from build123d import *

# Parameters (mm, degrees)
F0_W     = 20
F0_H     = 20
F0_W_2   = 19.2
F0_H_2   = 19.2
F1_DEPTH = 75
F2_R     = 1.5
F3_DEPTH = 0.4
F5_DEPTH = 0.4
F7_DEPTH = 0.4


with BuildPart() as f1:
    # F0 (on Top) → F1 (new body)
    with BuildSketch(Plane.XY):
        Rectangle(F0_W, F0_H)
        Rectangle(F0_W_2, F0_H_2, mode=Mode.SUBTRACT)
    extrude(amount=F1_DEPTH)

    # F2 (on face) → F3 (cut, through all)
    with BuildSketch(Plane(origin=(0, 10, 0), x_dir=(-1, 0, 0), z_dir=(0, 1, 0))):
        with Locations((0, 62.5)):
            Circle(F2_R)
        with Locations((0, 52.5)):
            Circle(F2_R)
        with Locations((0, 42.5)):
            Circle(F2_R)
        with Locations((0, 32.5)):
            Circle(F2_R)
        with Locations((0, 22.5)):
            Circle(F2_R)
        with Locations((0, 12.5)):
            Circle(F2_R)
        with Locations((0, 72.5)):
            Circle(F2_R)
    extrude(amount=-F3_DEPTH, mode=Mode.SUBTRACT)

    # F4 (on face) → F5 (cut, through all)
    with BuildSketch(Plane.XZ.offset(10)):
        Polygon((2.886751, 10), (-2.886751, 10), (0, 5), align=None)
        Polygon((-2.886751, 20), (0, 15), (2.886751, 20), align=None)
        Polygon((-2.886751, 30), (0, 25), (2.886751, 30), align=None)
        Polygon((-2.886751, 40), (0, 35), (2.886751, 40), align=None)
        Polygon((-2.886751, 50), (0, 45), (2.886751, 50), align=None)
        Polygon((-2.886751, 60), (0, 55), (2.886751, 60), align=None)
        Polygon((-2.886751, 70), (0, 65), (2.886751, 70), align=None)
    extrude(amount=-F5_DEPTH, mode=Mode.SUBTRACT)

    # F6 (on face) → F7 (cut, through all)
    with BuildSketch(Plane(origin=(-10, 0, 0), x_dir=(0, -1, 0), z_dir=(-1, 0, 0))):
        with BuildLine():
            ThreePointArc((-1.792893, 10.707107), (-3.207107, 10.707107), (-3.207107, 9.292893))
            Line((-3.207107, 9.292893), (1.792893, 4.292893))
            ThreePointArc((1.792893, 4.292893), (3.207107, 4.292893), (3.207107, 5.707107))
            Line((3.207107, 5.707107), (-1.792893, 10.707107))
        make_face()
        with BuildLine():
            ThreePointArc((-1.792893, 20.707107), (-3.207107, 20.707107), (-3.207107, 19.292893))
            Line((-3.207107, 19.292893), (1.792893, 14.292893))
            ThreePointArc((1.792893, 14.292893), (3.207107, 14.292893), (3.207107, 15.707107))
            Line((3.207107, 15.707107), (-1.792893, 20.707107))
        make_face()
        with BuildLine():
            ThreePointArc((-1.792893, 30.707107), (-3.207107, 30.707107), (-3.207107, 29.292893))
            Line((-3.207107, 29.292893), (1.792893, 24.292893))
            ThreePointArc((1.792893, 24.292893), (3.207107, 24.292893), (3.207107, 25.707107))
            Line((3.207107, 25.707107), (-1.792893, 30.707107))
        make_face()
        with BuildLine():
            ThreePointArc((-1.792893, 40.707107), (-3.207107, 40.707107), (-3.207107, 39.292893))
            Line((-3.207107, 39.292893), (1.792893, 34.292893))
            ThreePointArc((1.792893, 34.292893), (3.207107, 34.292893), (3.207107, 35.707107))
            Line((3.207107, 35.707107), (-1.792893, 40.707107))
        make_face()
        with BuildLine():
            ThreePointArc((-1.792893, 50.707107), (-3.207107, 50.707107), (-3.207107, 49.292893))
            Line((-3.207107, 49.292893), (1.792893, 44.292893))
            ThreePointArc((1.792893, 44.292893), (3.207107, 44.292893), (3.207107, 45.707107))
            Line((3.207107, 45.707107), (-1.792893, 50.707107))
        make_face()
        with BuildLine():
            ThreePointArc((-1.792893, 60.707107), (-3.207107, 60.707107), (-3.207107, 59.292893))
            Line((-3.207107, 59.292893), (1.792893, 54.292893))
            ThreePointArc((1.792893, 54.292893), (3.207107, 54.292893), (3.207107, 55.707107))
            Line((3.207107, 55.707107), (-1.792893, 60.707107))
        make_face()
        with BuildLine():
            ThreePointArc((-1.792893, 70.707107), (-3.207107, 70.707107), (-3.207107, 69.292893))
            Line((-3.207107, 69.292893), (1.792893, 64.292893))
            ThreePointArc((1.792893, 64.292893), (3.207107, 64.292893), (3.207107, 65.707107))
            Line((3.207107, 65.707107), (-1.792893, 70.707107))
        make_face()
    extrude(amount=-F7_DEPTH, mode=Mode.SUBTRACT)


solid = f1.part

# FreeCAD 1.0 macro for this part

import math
import FreeCAD as App
import Part
import Sketcher
from FreeCAD import Vector
Q = App.Units.Quantity


def add_polygon(sketch, points):
    """Adds a closed chain of lines whose ends are joined by coincident constraints."""
    first, n = sketch.GeometryCount, len(points)
    for a, b in zip(points, points[1:] + points[:1]):
        sketch.addGeometry(Part.LineSegment(App.Vector(*a, 0), App.Vector(*b, 0)), False)
    for i in range(n):
        sketch.addConstraint(Sketcher.Constraint("Coincident", first + i, 2, first + (i + 1) % n, 1))

doc = App.newDocument("Part")
body = doc.addObject("PartDesign::Body", "Body")

# Sketch on XY plane
sketch1 = doc.addObject("Sketcher::SketchObject", "Sketch")
body.addObject(sketch1)
sketch1.AttachmentSupport = (doc.XY_Plane, [""])
sketch1.MapMode = "FlatFace"
add_polygon(sketch1, [(-10, 10), (-10, -10), (10, -10), (10, 10)])  # lines 0-3
add_polygon(sketch1, [(9.6, -9.6), (-9.6, -9.6), (-9.6, 9.6), (9.6, 9.6)])  # lines 4-7
sketch1.addConstraint([
    Sketcher.Constraint("Vertical", 0),
    Sketcher.Constraint("Horizontal", 1),
    Sketcher.Constraint("Vertical", 2),
    Sketcher.Constraint("Horizontal", 3),
    Sketcher.Constraint("Horizontal", 4),
    Sketcher.Constraint("Vertical", 5),
    Sketcher.Constraint("Horizontal", 6),
    Sketcher.Constraint("Vertical", 7),
    Sketcher.Constraint("Symmetric", 0, 2, 2, 2, -1, 1),
    Sketcher.Constraint("Symmetric", 4, 2, 6, 2, -1, 1),
    Sketcher.Constraint("Equal", 3, 0),
    Sketcher.Constraint("Equal", 6, 5),
    Sketcher.Constraint("DistanceX", 1, 1, 1, 2, Q("20 mm")),
    Sketcher.Constraint("DistanceX", 4, 2, 4, 1, Q("19.2 mm")),
])
pad1 = doc.addObject("PartDesign::Pad", "Pad")
body.addObject(pad1)
pad1.Profile = sketch1
pad1.Length = 75

# Sketch on XZ plane
sketch2 = doc.addObject("Sketcher::SketchObject", "Sketch001")
body.addObject(sketch2)
sketch2.AttachmentSupport = (doc.XZ_Plane, [""])
sketch2.MapMode = "FlatFace"
sketch2.AttachmentOffset = App.Placement(Vector(0, 0, -10), App.Rotation())
sketch2.addGeometry([
    Part.Circle(Vector(0, 62.5, 0), Vector(0, 0, 1), 1.5),  # 0
    Part.Circle(Vector(0, 52.5, 0), Vector(0, 0, 1), 1.5),  # 1
    Part.Circle(Vector(0, 42.5, 0), Vector(0, 0, 1), 1.5),  # 2
    Part.Circle(Vector(0, 32.5, 0), Vector(0, 0, 1), 1.5),  # 3
    Part.Circle(Vector(0, 22.5, 0), Vector(0, 0, 1), 1.5),  # 4
    Part.Circle(Vector(0, 12.5, 0), Vector(0, 0, 1), 1.5),  # 5
    Part.Circle(Vector(0, 72.5, 0), Vector(0, 0, 1), 1.5),  # 6
], False)
sketch2.addConstraint([
    Sketcher.Constraint("Equal", 0, 1),
    Sketcher.Constraint("Equal", 1, 2),
    Sketcher.Constraint("Equal", 2, 3),
    Sketcher.Constraint("Equal", 3, 4),
    Sketcher.Constraint("Equal", 4, 5),
    Sketcher.Constraint("Equal", 5, 6),
    Sketcher.Constraint("PointOnObject", 0, 3, -2),
    Sketcher.Constraint("PointOnObject", 1, 3, -2),
    Sketcher.Constraint("PointOnObject", 2, 3, -2),
    Sketcher.Constraint("PointOnObject", 3, 3, -2),
    Sketcher.Constraint("PointOnObject", 4, 3, -2),
    Sketcher.Constraint("PointOnObject", 5, 3, -2),
    Sketcher.Constraint("PointOnObject", 6, 3, -2),
    Sketcher.Constraint("Diameter", 0, Q("3 mm")),
    Sketcher.Constraint("DistanceY", 1, 3, 0, 3, Q("10 mm")),
    Sketcher.Constraint("DistanceY", 2, 3, 1, 3, Q("10 mm")),
    Sketcher.Constraint("DistanceY", 3, 3, 2, 3, Q("10 mm")),
    Sketcher.Constraint("DistanceY", 4, 3, 3, 3, Q("10 mm")),
    Sketcher.Constraint("DistanceY", 5, 3, 4, 3, Q("10 mm")),
    Sketcher.Constraint("DistanceY", 0, 3, 6, 3, Q("10 mm")),
    Sketcher.Constraint("DistanceY", -1, 1, 0, 3, Q("62.5 mm")),
])
pocket1 = doc.addObject("PartDesign::Pocket", "Pocket")
body.addObject(pocket1)
pocket1.Profile = sketch2
pocket1.Length = 0.4
pocket1.Reversed = True

# Sketch on XZ plane
sketch3 = doc.addObject("Sketcher::SketchObject", "Sketch002")
body.addObject(sketch3)
sketch3.AttachmentSupport = (doc.XZ_Plane, [""])
sketch3.MapMode = "FlatFace"
sketch3.AttachmentOffset = App.Placement(Vector(0, 0, 10), App.Rotation())
add_polygon(sketch3, [(2.886751, 10), (-2.886751, 10), (0, 5)])  # lines 0-2
add_polygon(sketch3, [(-2.886751, 20), (0, 15), (2.886751, 20)])  # lines 3-5
add_polygon(sketch3, [(-2.886751, 30), (0, 25), (2.886751, 30)])  # lines 6-8
add_polygon(sketch3, [(-2.886751, 40), (0, 35), (2.886751, 40)])  # lines 9-11
add_polygon(sketch3, [(-2.886751, 50), (0, 45), (2.886751, 50)])  # lines 12-14
add_polygon(sketch3, [(-2.886751, 60), (0, 55), (2.886751, 60)])  # lines 15-17
add_polygon(sketch3, [(-2.886751, 70), (0, 65), (2.886751, 70)])  # lines 18-20
sketch3.addConstraint([
    Sketcher.Constraint("Horizontal", 0),
    Sketcher.Constraint("Horizontal", 5),
    Sketcher.Constraint("Horizontal", 8),
    Sketcher.Constraint("Horizontal", 11),
    Sketcher.Constraint("Horizontal", 14),
    Sketcher.Constraint("Horizontal", 17),
    Sketcher.Constraint("Horizontal", 20),
    Sketcher.Constraint("PointOnObject", 1, 2, -2),
    Sketcher.Constraint("PointOnObject", 3, 2, -2),
    Sketcher.Constraint("PointOnObject", 6, 2, -2),
    Sketcher.Constraint("PointOnObject", 9, 2, -2),
    Sketcher.Constraint("PointOnObject", 12, 2, -2),
    Sketcher.Constraint("PointOnObject", 15, 2, -2),
    Sketcher.Constraint("PointOnObject", 18, 2, -2),
    Sketcher.Constraint("Parallel", 1, 3),
    Sketcher.Constraint("Parallel", 2, 4),
    Sketcher.Constraint("Parallel", 3, 6),
    Sketcher.Constraint("Parallel", 4, 7),
    Sketcher.Constraint("Parallel", 6, 9),
    Sketcher.Constraint("Parallel", 7, 10),
    Sketcher.Constraint("Parallel", 9, 12),
    Sketcher.Constraint("Parallel", 10, 13),
    Sketcher.Constraint("Parallel", 12, 15),
    Sketcher.Constraint("Parallel", 13, 16),
    Sketcher.Constraint("Parallel", 15, 18),
    Sketcher.Constraint("Parallel", 16, 19),
    Sketcher.Constraint("Vertical", 2, 2, 4, 2),
    Sketcher.Constraint("Vertical", 4, 2, 7, 2),
    Sketcher.Constraint("Vertical", 7, 2, 10, 2),
    Sketcher.Constraint("Vertical", 10, 2, 13, 2),
    Sketcher.Constraint("Vertical", 13, 2, 16, 2),
    Sketcher.Constraint("Vertical", 16, 2, 19, 2),
    Sketcher.Constraint("Equal", 1, 2),
    Sketcher.Constraint("Angle", 1, Q("-60.000003 deg")),
    Sketcher.Constraint("DistanceY", -1, 1, 0, 2, Q("10 mm")),
    Sketcher.Constraint("DistanceY", -1, 1, 1, 2, Q("5 mm")),
    Sketcher.Constraint("DistanceY", -1, 1, 3, 2, Q("15 mm")),
    Sketcher.Constraint("DistanceY", -1, 1, 6, 2, Q("25 mm")),
    Sketcher.Constraint("DistanceY", -1, 1, 9, 2, Q("35 mm")),
    Sketcher.Constraint("DistanceY", -1, 1, 12, 2, Q("45 mm")),
    Sketcher.Constraint("DistanceY", -1, 1, 15, 2, Q("55 mm")),
    Sketcher.Constraint("DistanceY", -1, 1, 18, 2, Q("65 mm")),
])
pocket2 = doc.addObject("PartDesign::Pocket", "Pocket001")
body.addObject(pocket2)
pocket2.Profile = sketch3
pocket2.Length = 0.4

# Sketch on YZ plane
sketch4 = doc.addObject("Sketcher::SketchObject", "Sketch003")
body.addObject(sketch4)
sketch4.AttachmentSupport = (doc.YZ_Plane, [""])
sketch4.MapMode = "FlatFace"
sketch4.AttachmentOffset = App.Placement(Vector(0, 0, -10), App.Rotation())
sketch4.addGeometry([
    Part.ArcOfCircle(Part.Circle(Vector(2.5, 10, 0), Vector(0, 0, 1), 1), math.radians(-45), math.radians(135)),  # 0
    Part.LineSegment(Vector(3.207107, 9.292893, 0), Vector(-1.792893, 4.292893, 0)),  # 1
    Part.ArcOfCircle(Part.Circle(Vector(-2.5, 5, 0), Vector(0, 0, 1), 1), math.radians(135), math.radians(315)),  # 2
    Part.LineSegment(Vector(-3.207107, 5.707107, 0), Vector(1.792893, 10.707107, 0)),  # 3
    Part.ArcOfCircle(Part.Circle(Vector(2.5, 20, 0), Vector(0, 0, 1), 1), math.radians(-45), math.radians(135)),  # 4
    Part.LineSegment(Vector(3.207107, 19.292893, 0), Vector(-1.792893, 14.292893, 0)),  # 5
    Part.ArcOfCircle(Part.Circle(Vector(-2.5, 15, 0), Vector(0, 0, 1), 1), math.radians(135), math.radians(315)),  # 6
    Part.LineSegment(Vector(-3.207107, 15.707107, 0), Vector(1.792893, 20.707107, 0)),  # 7
    Part.ArcOfCircle(Part.Circle(Vector(2.5, 30, 0), Vector(0, 0, 1), 1), math.radians(-45), math.radians(135)),  # 8
    Part.LineSegment(Vector(3.207107, 29.292893, 0), Vector(-1.792893, 24.292893, 0)),  # 9
    Part.ArcOfCircle(Part.Circle(Vector(-2.5, 25, 0), Vector(0, 0, 1), 1), math.radians(135), math.radians(315)),  # 10
    Part.LineSegment(Vector(-3.207107, 25.707107, 0), Vector(1.792893, 30.707107, 0)),  # 11
    Part.ArcOfCircle(Part.Circle(Vector(2.5, 40, 0), Vector(0, 0, 1), 1), math.radians(-45), math.radians(135)),  # 12
    Part.LineSegment(Vector(3.207107, 39.292893, 0), Vector(-1.792893, 34.292893, 0)),  # 13
    Part.ArcOfCircle(Part.Circle(Vector(-2.5, 35, 0), Vector(0, 0, 1), 1), math.radians(135), math.radians(315)),  # 14
    Part.LineSegment(Vector(-3.207107, 35.707107, 0), Vector(1.792893, 40.707107, 0)),  # 15
    Part.ArcOfCircle(Part.Circle(Vector(2.5, 50, 0), Vector(0, 0, 1), 1), math.radians(-45), math.radians(135)),  # 16
    Part.LineSegment(Vector(3.207107, 49.292893, 0), Vector(-1.792893, 44.292893, 0)),  # 17
    Part.ArcOfCircle(Part.Circle(Vector(-2.5, 45, 0), Vector(0, 0, 1), 1), math.radians(135), math.radians(315)),  # 18
    Part.LineSegment(Vector(-3.207107, 45.707107, 0), Vector(1.792893, 50.707107, 0)),  # 19
    Part.ArcOfCircle(Part.Circle(Vector(2.5, 60, 0), Vector(0, 0, 1), 1), math.radians(-45), math.radians(135)),  # 20
    Part.LineSegment(Vector(3.207107, 59.292893, 0), Vector(-1.792893, 54.292893, 0)),  # 21
    Part.ArcOfCircle(Part.Circle(Vector(-2.5, 55, 0), Vector(0, 0, 1), 1), math.radians(135), math.radians(315)),  # 22
    Part.LineSegment(Vector(-3.207107, 55.707107, 0), Vector(1.792893, 60.707107, 0)),  # 23
    Part.ArcOfCircle(Part.Circle(Vector(2.5, 70, 0), Vector(0, 0, 1), 1), math.radians(-45), math.radians(135)),  # 24
    Part.LineSegment(Vector(3.207107, 69.292893, 0), Vector(-1.792893, 64.292893, 0)),  # 25
    Part.ArcOfCircle(Part.Circle(Vector(-2.5, 65, 0), Vector(0, 0, 1), 1), math.radians(135), math.radians(315)),  # 26
    Part.LineSegment(Vector(-3.207107, 65.707107, 0), Vector(1.792893, 70.707107, 0)),  # 27
], False)
sketch4.addConstraint([
    Sketcher.Constraint("Tangent", 0, 1, 1, 1),
    Sketcher.Constraint("Tangent", 1, 2, 2, 2),
    Sketcher.Constraint("Tangent", 2, 1, 3, 1),
    Sketcher.Constraint("Tangent", 3, 2, 0, 2),
    Sketcher.Constraint("Tangent", 4, 1, 5, 1),
    Sketcher.Constraint("Tangent", 5, 2, 6, 2),
    Sketcher.Constraint("Tangent", 6, 1, 7, 1),
    Sketcher.Constraint("Tangent", 7, 2, 4, 2),
    Sketcher.Constraint("Tangent", 8, 1, 9, 1),
    Sketcher.Constraint("Tangent", 9, 2, 10, 2),
    Sketcher.Constraint("Tangent", 10, 1, 11, 1),
    Sketcher.Constraint("Tangent", 11, 2, 8, 2),
    Sketcher.Constraint("Tangent", 12, 1, 13, 1),
    Sketcher.Constraint("Tangent", 13, 2, 14, 2),
    Sketcher.Constraint("Tangent", 14, 1, 15, 1),
    Sketcher.Constraint("Tangent", 15, 2, 12, 2),
    Sketcher.Constraint("Tangent", 16, 1, 17, 1),
    Sketcher.Constraint("Tangent", 17, 2, 18, 2),
    Sketcher.Constraint("Tangent", 18, 1, 19, 1),
    Sketcher.Constraint("Tangent", 19, 2, 16, 2),
    Sketcher.Constraint("Tangent", 20, 1, 21, 1),
    Sketcher.Constraint("Tangent", 21, 2, 22, 2),
    Sketcher.Constraint("Tangent", 22, 1, 23, 1),
    Sketcher.Constraint("Tangent", 23, 2, 20, 2),
    Sketcher.Constraint("Tangent", 24, 1, 25, 1),
    Sketcher.Constraint("Tangent", 25, 2, 26, 2),
    Sketcher.Constraint("Tangent", 26, 1, 27, 1),
    Sketcher.Constraint("Tangent", 27, 2, 24, 2),
    Sketcher.Constraint("Equal", 0, 2),
    Sketcher.Constraint("Equal", 2, 4),
    Sketcher.Constraint("Equal", 4, 6),
    Sketcher.Constraint("Equal", 6, 8),
    Sketcher.Constraint("Equal", 8, 10),
    Sketcher.Constraint("Equal", 10, 12),
    Sketcher.Constraint("Equal", 12, 14),
    Sketcher.Constraint("Equal", 14, 16),
    Sketcher.Constraint("Equal", 16, 18),
    Sketcher.Constraint("Equal", 18, 20),
    Sketcher.Constraint("Equal", 20, 22),
    Sketcher.Constraint("Equal", 22, 24),
    Sketcher.Constraint("Equal", 24, 26),
    Sketcher.Constraint("Parallel", 3, 5),
    Sketcher.Constraint("Parallel", 7, 9),
    Sketcher.Constraint("Parallel", 11, 13),
    Sketcher.Constraint("Parallel", 15, 17),
    Sketcher.Constraint("Parallel", 19, 21),
    Sketcher.Constraint("Parallel", 23, 25),
    Sketcher.Constraint("Vertical", 0, 3, 4, 3),
    Sketcher.Constraint("Vertical", 2, 3, 6, 3),
    Sketcher.Constraint("Vertical", 4, 3, 8, 3),
    Sketcher.Constraint("Vertical", 6, 3, 10, 3),
    Sketcher.Constraint("Vertical", 8, 3, 12, 3),
    Sketcher.Constraint("Vertical", 10, 3, 14, 3),
    Sketcher.Constraint("Vertical", 12, 3, 16, 3),
    Sketcher.Constraint("Vertical", 14, 3, 18, 3),
    Sketcher.Constraint("Vertical", 16, 3, 20, 3),
    Sketcher.Constraint("Vertical", 18, 3, 22, 3),
    Sketcher.Constraint("Vertical", 20, 3, 24, 3),
    Sketcher.Constraint("Vertical", 22, 3, 26, 3),
    Sketcher.Constraint("Radius", 0, Q("1 mm")),
    Sketcher.Constraint("Angle", 1, Q("-135 deg")),
    Sketcher.Constraint("DistanceY", -1, 1, 0, 3, Q("10 mm")),
    Sketcher.Constraint("DistanceY", -1, 1, 2, 3, Q("5 mm")),
    Sketcher.Constraint("DistanceY", -1, 1, 4, 3, Q("20 mm")),
    Sketcher.Constraint("DistanceY", -1, 1, 8, 3, Q("30 mm")),
    Sketcher.Constraint("DistanceY", -1, 1, 12, 3, Q("40 mm")),
    Sketcher.Constraint("DistanceY", -1, 1, 16, 3, Q("50 mm")),
    Sketcher.Constraint("DistanceY", -1, 1, 20, 3, Q("60 mm")),
    Sketcher.Constraint("DistanceY", -1, 1, 24, 3, Q("70 mm")),
    Sketcher.Constraint("DistanceX", -1, 1, 0, 3, Q("2.5 mm")),
])
pocket3 = doc.addObject("PartDesign::Pocket", "Pocket002")
body.addObject(pocket3)
pocket3.Profile = sketch4
pocket3.Length = 0.4
pocket3.Reversed = True

doc.recompute()
